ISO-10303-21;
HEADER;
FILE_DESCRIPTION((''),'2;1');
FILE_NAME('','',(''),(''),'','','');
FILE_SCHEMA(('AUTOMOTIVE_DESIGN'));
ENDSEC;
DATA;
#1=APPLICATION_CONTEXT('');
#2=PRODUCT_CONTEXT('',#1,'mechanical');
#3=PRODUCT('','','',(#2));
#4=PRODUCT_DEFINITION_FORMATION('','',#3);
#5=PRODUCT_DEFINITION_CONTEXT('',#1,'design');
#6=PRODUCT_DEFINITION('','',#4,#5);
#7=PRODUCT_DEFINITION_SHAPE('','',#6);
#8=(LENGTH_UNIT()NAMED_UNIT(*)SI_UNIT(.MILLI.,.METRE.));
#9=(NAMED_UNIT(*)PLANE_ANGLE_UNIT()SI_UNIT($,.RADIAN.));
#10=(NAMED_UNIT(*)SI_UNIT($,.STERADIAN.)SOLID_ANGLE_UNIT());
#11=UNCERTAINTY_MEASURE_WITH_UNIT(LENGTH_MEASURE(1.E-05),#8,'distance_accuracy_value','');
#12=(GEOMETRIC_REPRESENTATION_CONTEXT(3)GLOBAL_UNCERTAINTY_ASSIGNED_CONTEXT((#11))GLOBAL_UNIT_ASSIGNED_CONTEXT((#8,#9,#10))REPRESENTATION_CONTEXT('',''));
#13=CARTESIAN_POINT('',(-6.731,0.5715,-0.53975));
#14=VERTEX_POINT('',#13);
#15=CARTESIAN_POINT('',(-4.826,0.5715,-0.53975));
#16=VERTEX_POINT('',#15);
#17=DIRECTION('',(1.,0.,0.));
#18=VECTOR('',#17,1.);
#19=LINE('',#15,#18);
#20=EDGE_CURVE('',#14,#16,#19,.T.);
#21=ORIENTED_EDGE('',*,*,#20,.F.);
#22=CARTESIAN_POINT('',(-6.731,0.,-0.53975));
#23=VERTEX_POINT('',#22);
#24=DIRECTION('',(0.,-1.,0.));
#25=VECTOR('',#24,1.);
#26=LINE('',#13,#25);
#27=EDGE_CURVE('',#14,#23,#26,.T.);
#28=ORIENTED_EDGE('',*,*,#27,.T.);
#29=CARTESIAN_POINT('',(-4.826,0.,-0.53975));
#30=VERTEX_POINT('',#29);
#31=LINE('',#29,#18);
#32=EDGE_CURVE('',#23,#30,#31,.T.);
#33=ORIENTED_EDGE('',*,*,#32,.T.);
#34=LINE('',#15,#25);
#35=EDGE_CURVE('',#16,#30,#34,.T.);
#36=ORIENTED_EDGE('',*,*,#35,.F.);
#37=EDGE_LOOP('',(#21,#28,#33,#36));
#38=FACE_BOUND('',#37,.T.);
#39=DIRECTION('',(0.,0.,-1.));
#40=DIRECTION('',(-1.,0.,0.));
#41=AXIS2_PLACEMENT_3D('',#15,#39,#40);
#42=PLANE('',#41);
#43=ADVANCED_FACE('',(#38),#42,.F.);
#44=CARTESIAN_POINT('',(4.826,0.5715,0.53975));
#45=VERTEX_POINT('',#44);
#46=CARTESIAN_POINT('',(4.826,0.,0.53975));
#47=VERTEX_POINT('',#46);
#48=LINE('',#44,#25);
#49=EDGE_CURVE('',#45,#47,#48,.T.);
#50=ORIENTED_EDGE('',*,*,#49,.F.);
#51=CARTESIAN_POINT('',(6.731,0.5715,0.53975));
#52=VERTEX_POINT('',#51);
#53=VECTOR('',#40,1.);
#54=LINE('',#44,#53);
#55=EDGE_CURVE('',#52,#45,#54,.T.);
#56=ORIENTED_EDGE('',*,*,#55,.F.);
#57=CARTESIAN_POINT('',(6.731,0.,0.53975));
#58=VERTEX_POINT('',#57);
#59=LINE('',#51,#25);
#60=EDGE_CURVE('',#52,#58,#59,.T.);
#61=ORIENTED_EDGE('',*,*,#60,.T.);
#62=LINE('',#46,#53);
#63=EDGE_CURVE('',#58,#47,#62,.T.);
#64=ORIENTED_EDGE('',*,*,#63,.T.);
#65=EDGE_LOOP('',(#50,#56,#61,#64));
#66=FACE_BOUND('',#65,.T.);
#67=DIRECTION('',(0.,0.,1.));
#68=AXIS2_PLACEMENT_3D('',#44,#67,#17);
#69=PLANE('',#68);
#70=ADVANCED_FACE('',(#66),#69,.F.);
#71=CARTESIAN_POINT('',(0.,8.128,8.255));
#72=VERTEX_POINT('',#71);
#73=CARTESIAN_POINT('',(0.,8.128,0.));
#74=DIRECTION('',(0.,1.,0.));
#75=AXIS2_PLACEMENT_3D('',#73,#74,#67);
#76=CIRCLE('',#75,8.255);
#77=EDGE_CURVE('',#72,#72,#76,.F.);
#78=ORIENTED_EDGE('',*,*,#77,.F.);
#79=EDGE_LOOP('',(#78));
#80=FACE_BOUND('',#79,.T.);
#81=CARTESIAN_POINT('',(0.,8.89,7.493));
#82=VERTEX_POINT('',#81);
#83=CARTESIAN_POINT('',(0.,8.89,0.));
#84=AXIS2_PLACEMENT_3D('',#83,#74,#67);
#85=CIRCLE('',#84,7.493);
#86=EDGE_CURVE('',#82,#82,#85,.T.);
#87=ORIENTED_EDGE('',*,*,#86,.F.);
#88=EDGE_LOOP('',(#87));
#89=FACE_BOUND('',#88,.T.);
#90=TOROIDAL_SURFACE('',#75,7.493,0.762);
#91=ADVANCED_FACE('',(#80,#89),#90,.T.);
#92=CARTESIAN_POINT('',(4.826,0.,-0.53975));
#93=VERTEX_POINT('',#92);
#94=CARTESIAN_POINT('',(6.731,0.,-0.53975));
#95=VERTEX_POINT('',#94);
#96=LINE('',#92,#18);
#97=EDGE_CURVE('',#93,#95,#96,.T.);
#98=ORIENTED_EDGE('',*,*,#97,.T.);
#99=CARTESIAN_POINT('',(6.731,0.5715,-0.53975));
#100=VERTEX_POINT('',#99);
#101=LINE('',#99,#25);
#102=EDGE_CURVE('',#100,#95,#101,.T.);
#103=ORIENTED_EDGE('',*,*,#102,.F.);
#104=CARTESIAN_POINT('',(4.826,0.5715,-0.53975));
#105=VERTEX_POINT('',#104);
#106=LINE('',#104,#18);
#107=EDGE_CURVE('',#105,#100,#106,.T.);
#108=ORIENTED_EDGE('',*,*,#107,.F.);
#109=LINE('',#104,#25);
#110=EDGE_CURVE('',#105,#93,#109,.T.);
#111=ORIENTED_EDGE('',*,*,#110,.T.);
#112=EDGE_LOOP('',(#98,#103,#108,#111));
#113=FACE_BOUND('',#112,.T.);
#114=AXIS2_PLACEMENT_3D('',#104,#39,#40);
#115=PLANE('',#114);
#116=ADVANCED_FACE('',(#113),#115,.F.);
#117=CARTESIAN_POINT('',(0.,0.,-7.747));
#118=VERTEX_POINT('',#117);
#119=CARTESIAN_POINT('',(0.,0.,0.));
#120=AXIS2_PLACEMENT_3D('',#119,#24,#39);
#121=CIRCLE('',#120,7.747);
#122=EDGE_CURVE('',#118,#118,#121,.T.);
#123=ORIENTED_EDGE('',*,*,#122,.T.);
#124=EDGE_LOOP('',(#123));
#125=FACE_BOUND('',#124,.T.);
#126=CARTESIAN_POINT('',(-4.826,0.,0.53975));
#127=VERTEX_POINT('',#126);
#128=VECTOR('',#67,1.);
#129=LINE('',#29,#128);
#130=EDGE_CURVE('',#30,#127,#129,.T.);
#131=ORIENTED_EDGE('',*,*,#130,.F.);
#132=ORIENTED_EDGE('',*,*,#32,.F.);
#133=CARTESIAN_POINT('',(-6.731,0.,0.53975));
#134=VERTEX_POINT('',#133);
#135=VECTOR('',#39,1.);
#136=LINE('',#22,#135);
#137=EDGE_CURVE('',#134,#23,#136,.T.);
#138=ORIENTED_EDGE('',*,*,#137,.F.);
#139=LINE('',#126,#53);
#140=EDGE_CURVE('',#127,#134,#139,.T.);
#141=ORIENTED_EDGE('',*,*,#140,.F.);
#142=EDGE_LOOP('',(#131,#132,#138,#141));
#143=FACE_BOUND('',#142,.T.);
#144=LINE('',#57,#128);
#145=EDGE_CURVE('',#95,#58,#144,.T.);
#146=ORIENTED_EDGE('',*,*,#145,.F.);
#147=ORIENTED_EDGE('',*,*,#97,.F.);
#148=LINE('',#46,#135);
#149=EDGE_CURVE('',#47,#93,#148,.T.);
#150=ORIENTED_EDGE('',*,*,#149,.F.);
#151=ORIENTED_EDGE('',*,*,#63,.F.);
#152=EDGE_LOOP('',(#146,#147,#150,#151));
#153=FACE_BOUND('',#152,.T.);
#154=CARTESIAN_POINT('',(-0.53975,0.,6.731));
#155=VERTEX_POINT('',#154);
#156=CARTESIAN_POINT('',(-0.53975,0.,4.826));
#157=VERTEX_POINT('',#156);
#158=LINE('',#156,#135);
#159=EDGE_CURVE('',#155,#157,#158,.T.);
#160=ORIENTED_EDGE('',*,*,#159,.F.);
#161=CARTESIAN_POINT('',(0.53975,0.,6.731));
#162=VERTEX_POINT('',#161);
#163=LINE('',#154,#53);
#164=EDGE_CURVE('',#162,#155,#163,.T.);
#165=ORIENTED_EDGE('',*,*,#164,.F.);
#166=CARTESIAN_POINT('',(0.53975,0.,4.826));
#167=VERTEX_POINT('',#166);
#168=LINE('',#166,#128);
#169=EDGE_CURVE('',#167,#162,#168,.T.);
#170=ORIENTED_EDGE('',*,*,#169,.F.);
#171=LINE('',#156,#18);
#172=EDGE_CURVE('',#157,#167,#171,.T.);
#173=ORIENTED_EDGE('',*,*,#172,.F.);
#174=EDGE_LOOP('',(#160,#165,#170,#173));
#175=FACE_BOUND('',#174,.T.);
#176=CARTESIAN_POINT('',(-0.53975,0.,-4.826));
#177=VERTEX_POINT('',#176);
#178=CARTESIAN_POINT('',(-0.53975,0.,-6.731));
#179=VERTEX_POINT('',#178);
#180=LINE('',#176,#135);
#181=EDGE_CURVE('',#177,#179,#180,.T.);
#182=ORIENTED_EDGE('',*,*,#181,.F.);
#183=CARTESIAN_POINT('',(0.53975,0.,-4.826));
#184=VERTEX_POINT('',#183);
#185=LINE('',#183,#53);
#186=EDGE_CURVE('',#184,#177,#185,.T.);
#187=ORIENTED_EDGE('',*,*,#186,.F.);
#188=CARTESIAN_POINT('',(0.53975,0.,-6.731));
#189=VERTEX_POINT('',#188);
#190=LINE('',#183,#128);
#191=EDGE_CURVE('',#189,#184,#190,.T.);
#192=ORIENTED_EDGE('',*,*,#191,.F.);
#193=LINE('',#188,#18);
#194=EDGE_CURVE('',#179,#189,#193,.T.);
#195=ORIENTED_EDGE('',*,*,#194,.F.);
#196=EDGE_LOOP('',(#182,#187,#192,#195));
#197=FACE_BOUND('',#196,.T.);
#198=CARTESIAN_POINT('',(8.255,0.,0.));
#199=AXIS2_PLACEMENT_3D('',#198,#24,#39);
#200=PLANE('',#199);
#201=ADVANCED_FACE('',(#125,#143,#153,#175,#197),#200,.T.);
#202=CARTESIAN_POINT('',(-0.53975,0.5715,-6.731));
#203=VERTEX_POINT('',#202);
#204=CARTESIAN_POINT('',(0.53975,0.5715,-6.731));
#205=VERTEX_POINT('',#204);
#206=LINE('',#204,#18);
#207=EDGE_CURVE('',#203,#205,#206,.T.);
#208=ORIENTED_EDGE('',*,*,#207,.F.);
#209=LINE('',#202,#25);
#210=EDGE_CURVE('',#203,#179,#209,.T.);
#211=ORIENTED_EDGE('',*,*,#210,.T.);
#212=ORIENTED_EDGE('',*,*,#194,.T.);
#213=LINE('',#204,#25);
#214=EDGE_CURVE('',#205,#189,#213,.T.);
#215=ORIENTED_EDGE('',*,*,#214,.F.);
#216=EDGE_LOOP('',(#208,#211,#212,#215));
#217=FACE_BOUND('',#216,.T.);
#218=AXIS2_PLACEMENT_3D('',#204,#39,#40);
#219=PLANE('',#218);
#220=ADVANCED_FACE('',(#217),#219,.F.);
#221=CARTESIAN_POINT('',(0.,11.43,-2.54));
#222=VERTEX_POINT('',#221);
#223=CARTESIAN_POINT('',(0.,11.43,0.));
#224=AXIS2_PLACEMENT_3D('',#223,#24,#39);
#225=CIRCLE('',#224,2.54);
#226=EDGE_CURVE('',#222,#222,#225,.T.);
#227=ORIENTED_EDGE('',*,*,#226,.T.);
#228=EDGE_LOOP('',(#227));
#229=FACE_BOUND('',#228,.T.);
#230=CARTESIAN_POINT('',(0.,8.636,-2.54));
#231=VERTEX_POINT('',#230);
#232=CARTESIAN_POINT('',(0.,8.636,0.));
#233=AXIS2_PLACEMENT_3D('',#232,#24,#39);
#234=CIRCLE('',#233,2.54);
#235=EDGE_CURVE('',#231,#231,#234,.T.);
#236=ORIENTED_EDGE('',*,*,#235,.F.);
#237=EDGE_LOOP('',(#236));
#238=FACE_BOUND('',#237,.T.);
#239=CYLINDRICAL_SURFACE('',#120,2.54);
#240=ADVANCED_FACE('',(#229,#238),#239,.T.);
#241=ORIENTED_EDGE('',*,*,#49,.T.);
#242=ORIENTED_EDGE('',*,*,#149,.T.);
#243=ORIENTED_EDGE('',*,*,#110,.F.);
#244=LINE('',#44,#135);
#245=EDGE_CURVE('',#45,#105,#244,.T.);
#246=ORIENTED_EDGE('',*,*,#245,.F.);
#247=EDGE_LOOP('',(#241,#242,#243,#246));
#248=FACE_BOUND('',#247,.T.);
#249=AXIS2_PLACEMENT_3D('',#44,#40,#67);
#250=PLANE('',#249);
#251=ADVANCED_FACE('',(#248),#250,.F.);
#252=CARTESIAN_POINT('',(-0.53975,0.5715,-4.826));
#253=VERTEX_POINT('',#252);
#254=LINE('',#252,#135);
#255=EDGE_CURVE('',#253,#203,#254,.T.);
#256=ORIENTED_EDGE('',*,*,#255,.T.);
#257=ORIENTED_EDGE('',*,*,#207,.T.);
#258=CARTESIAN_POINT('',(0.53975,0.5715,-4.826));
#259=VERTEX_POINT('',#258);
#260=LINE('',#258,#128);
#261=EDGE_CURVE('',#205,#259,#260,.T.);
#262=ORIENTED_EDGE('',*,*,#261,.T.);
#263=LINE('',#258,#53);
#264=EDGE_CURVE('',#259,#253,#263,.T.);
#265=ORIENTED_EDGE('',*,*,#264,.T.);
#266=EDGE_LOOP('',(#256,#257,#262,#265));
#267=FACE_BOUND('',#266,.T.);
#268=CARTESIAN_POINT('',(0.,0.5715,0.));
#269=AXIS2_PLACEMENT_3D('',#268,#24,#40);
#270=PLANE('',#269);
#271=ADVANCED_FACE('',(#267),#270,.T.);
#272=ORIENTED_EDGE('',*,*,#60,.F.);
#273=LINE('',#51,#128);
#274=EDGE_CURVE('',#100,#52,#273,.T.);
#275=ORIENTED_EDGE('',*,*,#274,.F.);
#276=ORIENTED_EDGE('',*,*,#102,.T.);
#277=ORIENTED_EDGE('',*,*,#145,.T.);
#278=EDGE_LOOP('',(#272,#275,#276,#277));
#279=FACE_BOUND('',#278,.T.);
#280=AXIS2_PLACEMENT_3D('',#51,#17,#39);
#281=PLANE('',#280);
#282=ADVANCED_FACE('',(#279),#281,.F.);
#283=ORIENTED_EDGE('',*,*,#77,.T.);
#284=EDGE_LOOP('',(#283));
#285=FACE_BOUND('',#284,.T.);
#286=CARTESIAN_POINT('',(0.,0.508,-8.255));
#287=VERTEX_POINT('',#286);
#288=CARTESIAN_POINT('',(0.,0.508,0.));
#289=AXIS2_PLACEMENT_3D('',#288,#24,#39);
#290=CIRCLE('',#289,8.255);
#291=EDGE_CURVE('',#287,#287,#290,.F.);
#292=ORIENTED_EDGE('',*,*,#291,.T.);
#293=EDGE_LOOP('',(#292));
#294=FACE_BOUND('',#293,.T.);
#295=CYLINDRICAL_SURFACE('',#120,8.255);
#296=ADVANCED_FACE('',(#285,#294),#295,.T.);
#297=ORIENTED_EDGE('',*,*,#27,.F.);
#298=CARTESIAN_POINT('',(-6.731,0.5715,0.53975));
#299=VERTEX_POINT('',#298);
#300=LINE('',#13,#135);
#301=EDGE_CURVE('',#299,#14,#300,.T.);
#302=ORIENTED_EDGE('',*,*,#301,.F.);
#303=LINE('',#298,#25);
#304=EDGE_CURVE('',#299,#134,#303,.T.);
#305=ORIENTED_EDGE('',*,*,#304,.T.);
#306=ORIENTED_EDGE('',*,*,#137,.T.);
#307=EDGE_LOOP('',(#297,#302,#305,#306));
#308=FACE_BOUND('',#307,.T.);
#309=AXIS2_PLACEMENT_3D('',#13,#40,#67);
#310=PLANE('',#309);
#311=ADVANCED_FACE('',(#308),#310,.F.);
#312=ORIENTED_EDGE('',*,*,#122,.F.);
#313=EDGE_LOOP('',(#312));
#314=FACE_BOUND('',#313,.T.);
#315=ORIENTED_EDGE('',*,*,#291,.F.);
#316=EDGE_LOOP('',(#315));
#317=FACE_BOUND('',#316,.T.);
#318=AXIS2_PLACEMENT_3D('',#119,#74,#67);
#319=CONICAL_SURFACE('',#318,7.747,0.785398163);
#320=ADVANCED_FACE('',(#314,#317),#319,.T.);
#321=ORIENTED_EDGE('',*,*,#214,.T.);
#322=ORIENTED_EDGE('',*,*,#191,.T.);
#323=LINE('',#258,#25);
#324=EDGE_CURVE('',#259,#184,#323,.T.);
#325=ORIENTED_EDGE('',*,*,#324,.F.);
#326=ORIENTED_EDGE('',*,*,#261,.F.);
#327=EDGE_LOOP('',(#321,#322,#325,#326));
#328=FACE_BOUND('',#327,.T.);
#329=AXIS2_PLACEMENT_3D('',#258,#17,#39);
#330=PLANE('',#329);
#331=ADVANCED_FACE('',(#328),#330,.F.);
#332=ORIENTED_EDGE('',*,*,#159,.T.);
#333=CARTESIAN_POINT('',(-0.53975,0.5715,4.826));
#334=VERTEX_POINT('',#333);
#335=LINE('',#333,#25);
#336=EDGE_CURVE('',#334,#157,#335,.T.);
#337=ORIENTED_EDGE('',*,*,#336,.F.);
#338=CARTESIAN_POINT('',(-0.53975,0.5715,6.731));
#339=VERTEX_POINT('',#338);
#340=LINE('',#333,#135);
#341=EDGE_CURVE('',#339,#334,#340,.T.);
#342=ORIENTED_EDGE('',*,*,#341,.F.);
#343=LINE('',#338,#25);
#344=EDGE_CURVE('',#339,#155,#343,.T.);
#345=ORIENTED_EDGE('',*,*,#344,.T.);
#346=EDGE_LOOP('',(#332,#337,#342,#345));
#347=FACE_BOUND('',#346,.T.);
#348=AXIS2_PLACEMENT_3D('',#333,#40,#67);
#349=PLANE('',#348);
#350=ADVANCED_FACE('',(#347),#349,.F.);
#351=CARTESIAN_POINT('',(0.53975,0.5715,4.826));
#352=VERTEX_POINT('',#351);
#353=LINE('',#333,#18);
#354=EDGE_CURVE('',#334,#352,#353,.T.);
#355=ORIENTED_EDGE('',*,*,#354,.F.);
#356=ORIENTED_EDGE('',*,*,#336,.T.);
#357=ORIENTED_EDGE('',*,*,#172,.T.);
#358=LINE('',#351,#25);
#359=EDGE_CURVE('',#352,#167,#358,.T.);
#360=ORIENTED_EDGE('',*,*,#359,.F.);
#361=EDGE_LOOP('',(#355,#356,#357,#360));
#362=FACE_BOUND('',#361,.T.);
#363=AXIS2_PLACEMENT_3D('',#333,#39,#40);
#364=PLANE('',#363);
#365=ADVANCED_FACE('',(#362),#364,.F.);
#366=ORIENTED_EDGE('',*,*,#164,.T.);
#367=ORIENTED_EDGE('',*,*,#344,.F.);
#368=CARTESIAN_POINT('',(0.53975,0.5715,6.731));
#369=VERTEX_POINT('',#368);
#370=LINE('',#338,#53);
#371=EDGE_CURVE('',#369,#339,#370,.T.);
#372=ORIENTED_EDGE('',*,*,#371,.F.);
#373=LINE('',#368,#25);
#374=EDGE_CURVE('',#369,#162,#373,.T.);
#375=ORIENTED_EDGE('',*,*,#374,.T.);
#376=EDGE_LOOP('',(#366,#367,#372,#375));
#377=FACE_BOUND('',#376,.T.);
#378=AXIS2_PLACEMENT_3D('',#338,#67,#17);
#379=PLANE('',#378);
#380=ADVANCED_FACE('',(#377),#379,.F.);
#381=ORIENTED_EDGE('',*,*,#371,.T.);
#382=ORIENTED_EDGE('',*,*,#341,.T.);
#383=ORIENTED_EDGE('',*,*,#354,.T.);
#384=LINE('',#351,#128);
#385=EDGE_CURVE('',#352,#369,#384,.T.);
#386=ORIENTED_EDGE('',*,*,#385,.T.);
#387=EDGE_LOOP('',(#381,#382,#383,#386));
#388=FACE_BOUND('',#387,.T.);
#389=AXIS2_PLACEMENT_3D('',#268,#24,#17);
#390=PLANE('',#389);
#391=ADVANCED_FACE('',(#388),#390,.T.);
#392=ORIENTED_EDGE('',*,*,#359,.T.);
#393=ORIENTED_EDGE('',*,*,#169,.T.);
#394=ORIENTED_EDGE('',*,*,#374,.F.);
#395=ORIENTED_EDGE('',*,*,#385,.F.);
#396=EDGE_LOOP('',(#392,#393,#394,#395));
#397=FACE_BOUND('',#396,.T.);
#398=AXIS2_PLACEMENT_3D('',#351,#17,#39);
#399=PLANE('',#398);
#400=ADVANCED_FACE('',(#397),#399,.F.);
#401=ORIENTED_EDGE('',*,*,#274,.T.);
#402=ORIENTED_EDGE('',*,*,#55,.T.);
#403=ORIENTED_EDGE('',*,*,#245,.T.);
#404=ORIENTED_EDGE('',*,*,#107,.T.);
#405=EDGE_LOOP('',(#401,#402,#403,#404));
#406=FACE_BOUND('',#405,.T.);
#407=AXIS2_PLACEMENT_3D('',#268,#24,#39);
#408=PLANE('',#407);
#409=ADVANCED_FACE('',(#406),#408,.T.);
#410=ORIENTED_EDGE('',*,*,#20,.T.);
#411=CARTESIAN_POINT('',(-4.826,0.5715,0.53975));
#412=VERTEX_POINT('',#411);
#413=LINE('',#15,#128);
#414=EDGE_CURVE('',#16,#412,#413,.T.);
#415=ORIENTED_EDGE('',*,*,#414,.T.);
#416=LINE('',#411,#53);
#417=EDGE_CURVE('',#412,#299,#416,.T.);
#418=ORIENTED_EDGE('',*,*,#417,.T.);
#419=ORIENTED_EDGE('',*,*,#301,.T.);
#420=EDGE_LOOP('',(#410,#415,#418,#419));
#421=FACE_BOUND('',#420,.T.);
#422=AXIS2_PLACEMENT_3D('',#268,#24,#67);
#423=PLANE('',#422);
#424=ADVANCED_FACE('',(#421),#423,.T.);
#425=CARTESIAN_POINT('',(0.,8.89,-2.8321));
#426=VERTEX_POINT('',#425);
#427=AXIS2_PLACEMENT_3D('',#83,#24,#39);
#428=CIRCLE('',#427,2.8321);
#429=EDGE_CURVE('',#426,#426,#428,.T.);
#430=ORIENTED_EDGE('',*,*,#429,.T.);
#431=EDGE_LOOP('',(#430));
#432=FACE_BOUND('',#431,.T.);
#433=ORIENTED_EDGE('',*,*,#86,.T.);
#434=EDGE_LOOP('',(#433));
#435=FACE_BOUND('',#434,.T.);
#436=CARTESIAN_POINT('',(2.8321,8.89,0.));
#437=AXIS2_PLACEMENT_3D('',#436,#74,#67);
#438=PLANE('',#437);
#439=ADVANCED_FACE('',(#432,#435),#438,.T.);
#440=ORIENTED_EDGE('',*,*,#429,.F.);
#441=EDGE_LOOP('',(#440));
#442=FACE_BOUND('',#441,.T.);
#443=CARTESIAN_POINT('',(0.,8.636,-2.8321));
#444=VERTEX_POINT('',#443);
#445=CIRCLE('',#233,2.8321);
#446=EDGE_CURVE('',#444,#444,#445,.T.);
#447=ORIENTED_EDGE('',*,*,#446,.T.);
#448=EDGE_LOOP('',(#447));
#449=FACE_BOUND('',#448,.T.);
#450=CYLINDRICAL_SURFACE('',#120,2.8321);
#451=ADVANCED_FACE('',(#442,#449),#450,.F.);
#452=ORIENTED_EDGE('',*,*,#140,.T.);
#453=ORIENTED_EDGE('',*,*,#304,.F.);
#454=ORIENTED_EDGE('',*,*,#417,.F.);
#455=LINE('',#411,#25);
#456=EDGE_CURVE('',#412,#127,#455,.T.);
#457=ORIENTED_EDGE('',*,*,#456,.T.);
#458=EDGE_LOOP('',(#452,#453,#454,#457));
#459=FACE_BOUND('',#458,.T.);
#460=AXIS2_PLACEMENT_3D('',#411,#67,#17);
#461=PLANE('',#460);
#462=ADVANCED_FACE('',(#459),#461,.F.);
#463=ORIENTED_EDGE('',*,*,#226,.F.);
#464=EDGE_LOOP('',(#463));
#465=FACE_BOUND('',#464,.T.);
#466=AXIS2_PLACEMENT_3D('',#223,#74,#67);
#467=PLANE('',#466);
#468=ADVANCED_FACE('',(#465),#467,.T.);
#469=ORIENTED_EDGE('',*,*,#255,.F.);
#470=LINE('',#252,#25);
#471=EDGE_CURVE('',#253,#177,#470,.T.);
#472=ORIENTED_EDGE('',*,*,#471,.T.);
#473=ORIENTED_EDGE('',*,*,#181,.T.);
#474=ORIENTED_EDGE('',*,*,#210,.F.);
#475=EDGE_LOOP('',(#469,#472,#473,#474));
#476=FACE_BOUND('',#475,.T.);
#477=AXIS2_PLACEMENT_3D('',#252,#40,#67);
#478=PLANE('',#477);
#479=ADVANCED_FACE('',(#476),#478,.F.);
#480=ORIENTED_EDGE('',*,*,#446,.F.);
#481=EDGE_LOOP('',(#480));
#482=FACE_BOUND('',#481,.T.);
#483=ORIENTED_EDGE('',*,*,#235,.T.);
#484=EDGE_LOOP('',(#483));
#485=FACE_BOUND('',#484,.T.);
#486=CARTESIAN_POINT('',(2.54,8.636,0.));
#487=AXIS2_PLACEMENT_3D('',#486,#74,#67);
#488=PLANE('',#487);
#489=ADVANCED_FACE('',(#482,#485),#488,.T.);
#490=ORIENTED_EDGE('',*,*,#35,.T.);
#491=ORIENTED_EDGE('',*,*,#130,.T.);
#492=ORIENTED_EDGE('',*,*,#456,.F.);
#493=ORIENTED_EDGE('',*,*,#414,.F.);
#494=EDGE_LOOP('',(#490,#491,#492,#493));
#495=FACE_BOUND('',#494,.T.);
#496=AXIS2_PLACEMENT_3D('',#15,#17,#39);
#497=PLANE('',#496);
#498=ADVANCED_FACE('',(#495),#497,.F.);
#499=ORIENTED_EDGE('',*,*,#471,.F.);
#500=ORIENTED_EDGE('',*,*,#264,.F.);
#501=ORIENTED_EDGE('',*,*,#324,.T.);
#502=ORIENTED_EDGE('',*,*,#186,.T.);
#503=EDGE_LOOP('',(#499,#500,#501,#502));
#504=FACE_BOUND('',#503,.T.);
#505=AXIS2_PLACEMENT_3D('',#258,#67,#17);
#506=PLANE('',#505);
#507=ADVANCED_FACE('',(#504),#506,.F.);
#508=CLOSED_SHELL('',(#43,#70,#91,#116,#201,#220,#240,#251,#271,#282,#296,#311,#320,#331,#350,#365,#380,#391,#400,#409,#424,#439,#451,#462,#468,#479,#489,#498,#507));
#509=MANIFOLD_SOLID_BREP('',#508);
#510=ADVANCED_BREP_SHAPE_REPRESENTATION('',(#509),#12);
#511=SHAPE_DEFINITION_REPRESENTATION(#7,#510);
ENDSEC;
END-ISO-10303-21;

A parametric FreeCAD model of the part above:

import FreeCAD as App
import Part
import Sketcher

V = App.Vector
Q = App.Units.Quantity


def edges_at(feature, points):
    """Names of the edges that pass closest to the given points."""
    edges = feature.Shape.Edges
    near = lambda p: min(range(len(edges)), key=lambda i: edges[i].distToShape(Part.Vertex(*p))[0])
    return sorted({f"Edge{near(p) + 1}" for p in points})


def add_polygon(sketch, points):
    """Adds a closed chain of lines whose ends are joined by coincident constraints."""
    first, n = sketch.GeometryCount, len(points)
    for a, b in zip(points, points[1:] + points[:1]):
        sketch.addGeometry(Part.LineSegment(App.Vector(*a, 0), App.Vector(*b, 0)), False)
    for i in range(n):
        sketch.addConstraint(Sketcher.Constraint("Coincident", first + i, 2, first + (i + 1) % n, 1))

doc = App.newDocument("Part")
body = doc.addObject("PartDesign::Body", "Body")

# Sketch on XY plane
sketch1 = body.newObject("Sketcher::SketchObject", "Sketch")
sketch1.AttachmentSupport = (doc.getObject("XY_Plane"), [""])
sketch1.MapMode = "FlatFace"
add_polygon(sketch1, [(0, 11.43), (0, 0), (8.26, 0), (8.26, 8.89), (2.83, 8.89), (2.83, 8.64), (2.54, 8.64), (2.54, 11.43)])  # lines 0-7
sketch1.addConstraint([
    Sketcher.Constraint("Vertical", 0),
    Sketcher.Constraint("Horizontal", 1),
    Sketcher.Constraint("Vertical", 2),
    Sketcher.Constraint("Horizontal", 3),
    Sketcher.Constraint("Vertical", 4),
    Sketcher.Constraint("Horizontal", 5),
    Sketcher.Constraint("Vertical", 6),
    Sketcher.Constraint("Horizontal", 7),
    Sketcher.Constraint("Coincident", 0, 2, -1, 1),
    Sketcher.Constraint("DistanceX", 7, 2, 7, 1, Q("0.1 in")),
    Sketcher.Constraint("DistanceY", 0, 2, 0, 1, Q("0.45 in")),
    Sketcher.Constraint("DistanceY", 2, 1, 2, 2, Q("0.35 in")),
    Sketcher.Constraint("DistanceY", 4, 2, 4, 1, Q("0.01 in")),
    Sketcher.Constraint("DistanceX", 1, 1, 1, 2, Q("0.325 in")),
    Sketcher.Constraint("DistanceX", 3, 2, 3, 1, Q("0.2135 in")),
])
revolution = body.newObject("PartDesign::Revolution", "Revolution")
revolution.Profile = sketch1
revolution.ReferenceAxis = (sketch1, ["V_Axis"])
revolution.Angle = 360
doc.recompute()

fillet = body.newObject("PartDesign::Fillet", "Fillet")
fillet.Base = (revolution, edges_at(revolution, [(0, 8.89, 8.255)]))
fillet.Radius = Q("0.03 in")
doc.recompute()

chamfer = body.newObject("PartDesign::Chamfer", "Chamfer")
chamfer.Base = (fillet, edges_at(fillet, [(0, 0, 8.255)]))
chamfer.Size = Q("0.02 in")

# Sketch on XZ plane
sketch2 = body.newObject("Sketcher::SketchObject", "Sketch001")
sketch2.AttachmentSupport = (doc.getObject("XZ_Plane"), [""])
sketch2.MapMode = "FlatFace"
add_polygon(sketch2, [(4.8, 0.5), (4.8, -0.5), (6.7, -0.5), (6.7, 0.5)])  # lines 0-3
sketch2.addConstraint([
    Sketcher.Constraint("Vertical", 0),
    Sketcher.Constraint("Horizontal", 1),
    Sketcher.Constraint("Vertical", 2),
    Sketcher.Constraint("Horizontal", 3),
    Sketcher.Constraint("DistanceX", 1, 1, 1, 2, Q("0.075 in")),
    Sketcher.Constraint("DistanceX", -1, 1, 0, 2, Q("0.19 in")),
    Sketcher.Constraint("DistanceY", 0, 2, 0, 1, Q("0.0425 in")),
    Sketcher.Constraint("DistanceY", 0, 2, -1, 1, Q("0.53975 mm")),
])
pocket1 = body.newObject("PartDesign::Pocket", "Pocket")
pocket1.Profile = sketch2
pocket1.Length = Q("0.0225 in")
doc.recompute()

polarpattern = body.newObject("PartDesign::PolarPattern", "PolarPattern")
polarpattern.Originals = [pocket1]
polarpattern.Axis = (doc.getObject("Y_Axis"), [""])
polarpattern.Angle = 360
polarpattern.Occurrences = 4
body.Tip = polarpattern

doc.recompute()
